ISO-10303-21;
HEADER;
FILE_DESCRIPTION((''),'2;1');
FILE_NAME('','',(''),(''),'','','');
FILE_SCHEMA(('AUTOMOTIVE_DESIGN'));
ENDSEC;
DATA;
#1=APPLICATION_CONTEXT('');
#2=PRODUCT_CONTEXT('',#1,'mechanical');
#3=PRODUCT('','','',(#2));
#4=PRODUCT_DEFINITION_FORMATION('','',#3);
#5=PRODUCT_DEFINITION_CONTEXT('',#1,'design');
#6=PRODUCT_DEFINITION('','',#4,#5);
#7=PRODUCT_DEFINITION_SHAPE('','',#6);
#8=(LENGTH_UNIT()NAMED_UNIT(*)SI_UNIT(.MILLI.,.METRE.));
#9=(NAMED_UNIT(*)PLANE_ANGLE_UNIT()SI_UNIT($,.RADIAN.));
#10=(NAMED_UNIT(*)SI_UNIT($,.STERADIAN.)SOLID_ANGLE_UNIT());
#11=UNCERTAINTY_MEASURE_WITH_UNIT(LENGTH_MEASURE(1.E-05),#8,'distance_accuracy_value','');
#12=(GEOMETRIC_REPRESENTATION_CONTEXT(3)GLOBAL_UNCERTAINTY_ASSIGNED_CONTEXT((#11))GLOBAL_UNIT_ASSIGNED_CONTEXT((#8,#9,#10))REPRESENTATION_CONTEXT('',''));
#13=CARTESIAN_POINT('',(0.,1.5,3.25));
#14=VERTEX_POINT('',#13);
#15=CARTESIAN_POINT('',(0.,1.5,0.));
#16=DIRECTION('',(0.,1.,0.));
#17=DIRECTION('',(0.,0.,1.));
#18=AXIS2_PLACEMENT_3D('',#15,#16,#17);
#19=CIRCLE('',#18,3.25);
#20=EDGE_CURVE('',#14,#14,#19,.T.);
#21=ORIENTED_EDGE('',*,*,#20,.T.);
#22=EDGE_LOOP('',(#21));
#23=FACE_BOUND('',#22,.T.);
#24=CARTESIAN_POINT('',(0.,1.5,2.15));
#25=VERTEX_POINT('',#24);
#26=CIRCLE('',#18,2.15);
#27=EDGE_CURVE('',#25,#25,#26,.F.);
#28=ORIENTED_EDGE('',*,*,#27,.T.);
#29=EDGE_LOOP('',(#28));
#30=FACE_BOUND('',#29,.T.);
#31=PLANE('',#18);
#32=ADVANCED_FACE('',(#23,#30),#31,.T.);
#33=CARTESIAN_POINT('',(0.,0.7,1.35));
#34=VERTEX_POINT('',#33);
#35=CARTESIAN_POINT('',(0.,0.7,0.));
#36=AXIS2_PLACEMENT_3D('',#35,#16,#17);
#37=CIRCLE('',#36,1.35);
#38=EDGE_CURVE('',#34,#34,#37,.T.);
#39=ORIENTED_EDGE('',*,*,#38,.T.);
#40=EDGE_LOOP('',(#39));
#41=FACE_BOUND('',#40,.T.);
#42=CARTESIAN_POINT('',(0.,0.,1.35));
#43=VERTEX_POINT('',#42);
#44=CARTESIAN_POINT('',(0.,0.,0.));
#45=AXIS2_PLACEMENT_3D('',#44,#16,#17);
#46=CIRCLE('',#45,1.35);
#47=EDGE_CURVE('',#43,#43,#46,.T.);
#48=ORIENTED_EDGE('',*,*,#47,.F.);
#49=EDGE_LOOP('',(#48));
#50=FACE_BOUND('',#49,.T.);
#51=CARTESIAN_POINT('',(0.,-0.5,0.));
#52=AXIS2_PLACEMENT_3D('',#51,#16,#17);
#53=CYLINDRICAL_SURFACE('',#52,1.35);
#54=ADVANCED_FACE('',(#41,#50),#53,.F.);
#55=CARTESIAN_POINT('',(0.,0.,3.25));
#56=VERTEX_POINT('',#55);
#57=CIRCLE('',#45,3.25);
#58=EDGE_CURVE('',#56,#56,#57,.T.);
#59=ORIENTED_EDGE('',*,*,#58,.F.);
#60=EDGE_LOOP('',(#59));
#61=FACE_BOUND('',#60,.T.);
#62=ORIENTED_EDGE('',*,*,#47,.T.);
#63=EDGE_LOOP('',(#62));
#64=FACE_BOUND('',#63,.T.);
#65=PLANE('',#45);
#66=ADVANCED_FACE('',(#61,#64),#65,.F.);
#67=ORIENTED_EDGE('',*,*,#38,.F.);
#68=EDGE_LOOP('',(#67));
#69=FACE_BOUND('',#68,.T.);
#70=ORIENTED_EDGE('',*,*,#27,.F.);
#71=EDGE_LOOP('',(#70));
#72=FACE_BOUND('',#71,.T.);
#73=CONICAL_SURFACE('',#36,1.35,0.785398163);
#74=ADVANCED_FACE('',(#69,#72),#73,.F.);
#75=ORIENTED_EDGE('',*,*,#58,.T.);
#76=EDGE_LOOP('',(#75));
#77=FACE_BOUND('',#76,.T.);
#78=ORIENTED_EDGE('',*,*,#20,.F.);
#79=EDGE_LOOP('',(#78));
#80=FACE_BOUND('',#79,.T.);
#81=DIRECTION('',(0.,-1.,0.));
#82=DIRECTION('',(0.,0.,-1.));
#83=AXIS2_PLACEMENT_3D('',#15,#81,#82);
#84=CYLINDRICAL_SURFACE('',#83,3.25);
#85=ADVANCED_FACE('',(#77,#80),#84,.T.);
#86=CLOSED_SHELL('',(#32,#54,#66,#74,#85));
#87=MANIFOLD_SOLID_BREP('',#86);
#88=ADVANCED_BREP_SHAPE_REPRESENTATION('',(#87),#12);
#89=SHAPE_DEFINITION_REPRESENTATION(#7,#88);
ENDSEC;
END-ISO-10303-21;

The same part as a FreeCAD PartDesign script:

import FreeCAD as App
import Part
import Sketcher
Q = App.Units.Quantity


def edges_at(feature, points):
    """Names of the edges that pass closest to the given points."""
    edges = feature.Shape.Edges
    near = lambda p: min(range(len(edges)), key=lambda i: edges[i].distToShape(Part.Vertex(*p))[0])
    return sorted({f"Edge{near(p) + 1}" for p in points})

doc = App.newDocument("Part")
body = doc.addObject("PartDesign::Body", "Body")

# Sketch on XZ plane
sketch1 = doc.addObject("Sketcher::SketchObject", "Sketch")
body.addObject(sketch1)
sketch1.AttachmentSupport = (doc.XZ_Plane, [""])
sketch1.MapMode = "FlatFace"
sketch1.addGeometry(Part.Circle(App.Vector(0, 0, 0), App.Vector(0, 0, 1), 3.2), False)
sketch1.addConstraint(Sketcher.Constraint("Coincident", 0, 3, -1, 1))
sketch1.addConstraint(Sketcher.Constraint("Diameter", 0, Q("6.5 mm")))
pad1 = doc.addObject("PartDesign::Pad", "Pad")
body.addObject(pad1)
pad1.Profile = sketch1
pad1.Length = 1.5
pad1.Reversed = True

# Sketch on XZ plane
sketch2 = doc.addObject("Sketcher::SketchObject", "Sketch001")
body.addObject(sketch2)
sketch2.AttachmentSupport = (doc.XZ_Plane, [""])
sketch2.MapMode = "FlatFace"
sketch2.AttachmentOffset = App.Placement(App.Vector(0, 0, -1.5), App.Rotation())
sketch2.addGeometry(Part.Circle(App.Vector(0, 0, 0), App.Vector(0, 0, 1), 1.4), False)
sketch2.addConstraint(Sketcher.Constraint("Coincident", 0, 3, -1, 1))
sketch2.addConstraint(Sketcher.Constraint("Diameter", 0, Q("2.7 mm")))
pocket1 = doc.addObject("PartDesign::Pocket", "Pocket")
body.addObject(pocket1)
pocket1.Profile = sketch2
pocket1.Length = 2
pocket1.Reversed = True
doc.recompute()

chamfer = doc.addObject("PartDesign::Chamfer", "Chamfer")
body.addObject(chamfer)
chamfer.Base = (pocket1, edges_at(pocket1, [(0, 1.5, -1.35)]))
chamfer.Size = 0.8

doc.recompute()
